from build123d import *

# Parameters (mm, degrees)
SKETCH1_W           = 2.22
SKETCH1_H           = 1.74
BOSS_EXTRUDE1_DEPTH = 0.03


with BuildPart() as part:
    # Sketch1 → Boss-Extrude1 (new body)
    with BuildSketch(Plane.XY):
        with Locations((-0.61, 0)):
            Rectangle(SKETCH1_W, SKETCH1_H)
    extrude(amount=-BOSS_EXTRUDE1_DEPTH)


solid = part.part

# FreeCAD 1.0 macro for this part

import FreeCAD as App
import Part
import Sketcher

V = App.Vector
Q = App.Units.Quantity

doc = App.newDocument("Part")
body = doc.addObject("PartDesign::Body", "Body")

# Sketch on XY plane
sketch1 = body.newObject("Sketcher::SketchObject", "Sketch")
sketch1.AttachmentSupport = (doc.getObject("XY_Plane"), [""])
sketch1.MapMode = "FlatFace"
sketch1.addGeometry([
    Part.LineSegment(V(-1.7, 0.9, 0), V(-1.7, -0.9, 0)),
    Part.LineSegment(V(-1.7, -0.9, 0), V(0.5, -0.9, 0)),
    Part.LineSegment(V(0.5, -0.9, 0), V(0.5, 0.9, 0)),
    Part.LineSegment(V(0.5, 0.9, 0), V(-1.7, 0.9, 0)),
], False)
sketch1.addConstraint([
    Sketcher.Constraint("Coincident", 0, 2, 1, 1),
    Sketcher.Constraint("Coincident", 1, 2, 2, 1),
    Sketcher.Constraint("Coincident", 2, 2, 3, 1),
    Sketcher.Constraint("Coincident", 3, 2, 0, 1),
    Sketcher.Constraint("Vertical", 0),
    Sketcher.Constraint("Horizontal", 1),
    Sketcher.Constraint("Vertical", 2),
    Sketcher.Constraint("Horizontal", 3),
    Sketcher.Constraint("DistanceX", 1, 1, 1, 2, Q("2.22 mm")),
    Sketcher.Constraint("DistanceY", 0, 2, 0, 1, Q("1.74 mm")),
    Sketcher.Constraint("DistanceX", -1, 1, 1, 2, Q("0.5 mm")),
    Sketcher.Constraint("DistanceY", 0, 2, -1, 1, Q("0.87 mm")),
])
pad1 = body.newObject("PartDesign::Pad", "Pad")
pad1.Profile = sketch1
pad1.Length = 0.03
pad1.Reversed = True

doc.recompute()
